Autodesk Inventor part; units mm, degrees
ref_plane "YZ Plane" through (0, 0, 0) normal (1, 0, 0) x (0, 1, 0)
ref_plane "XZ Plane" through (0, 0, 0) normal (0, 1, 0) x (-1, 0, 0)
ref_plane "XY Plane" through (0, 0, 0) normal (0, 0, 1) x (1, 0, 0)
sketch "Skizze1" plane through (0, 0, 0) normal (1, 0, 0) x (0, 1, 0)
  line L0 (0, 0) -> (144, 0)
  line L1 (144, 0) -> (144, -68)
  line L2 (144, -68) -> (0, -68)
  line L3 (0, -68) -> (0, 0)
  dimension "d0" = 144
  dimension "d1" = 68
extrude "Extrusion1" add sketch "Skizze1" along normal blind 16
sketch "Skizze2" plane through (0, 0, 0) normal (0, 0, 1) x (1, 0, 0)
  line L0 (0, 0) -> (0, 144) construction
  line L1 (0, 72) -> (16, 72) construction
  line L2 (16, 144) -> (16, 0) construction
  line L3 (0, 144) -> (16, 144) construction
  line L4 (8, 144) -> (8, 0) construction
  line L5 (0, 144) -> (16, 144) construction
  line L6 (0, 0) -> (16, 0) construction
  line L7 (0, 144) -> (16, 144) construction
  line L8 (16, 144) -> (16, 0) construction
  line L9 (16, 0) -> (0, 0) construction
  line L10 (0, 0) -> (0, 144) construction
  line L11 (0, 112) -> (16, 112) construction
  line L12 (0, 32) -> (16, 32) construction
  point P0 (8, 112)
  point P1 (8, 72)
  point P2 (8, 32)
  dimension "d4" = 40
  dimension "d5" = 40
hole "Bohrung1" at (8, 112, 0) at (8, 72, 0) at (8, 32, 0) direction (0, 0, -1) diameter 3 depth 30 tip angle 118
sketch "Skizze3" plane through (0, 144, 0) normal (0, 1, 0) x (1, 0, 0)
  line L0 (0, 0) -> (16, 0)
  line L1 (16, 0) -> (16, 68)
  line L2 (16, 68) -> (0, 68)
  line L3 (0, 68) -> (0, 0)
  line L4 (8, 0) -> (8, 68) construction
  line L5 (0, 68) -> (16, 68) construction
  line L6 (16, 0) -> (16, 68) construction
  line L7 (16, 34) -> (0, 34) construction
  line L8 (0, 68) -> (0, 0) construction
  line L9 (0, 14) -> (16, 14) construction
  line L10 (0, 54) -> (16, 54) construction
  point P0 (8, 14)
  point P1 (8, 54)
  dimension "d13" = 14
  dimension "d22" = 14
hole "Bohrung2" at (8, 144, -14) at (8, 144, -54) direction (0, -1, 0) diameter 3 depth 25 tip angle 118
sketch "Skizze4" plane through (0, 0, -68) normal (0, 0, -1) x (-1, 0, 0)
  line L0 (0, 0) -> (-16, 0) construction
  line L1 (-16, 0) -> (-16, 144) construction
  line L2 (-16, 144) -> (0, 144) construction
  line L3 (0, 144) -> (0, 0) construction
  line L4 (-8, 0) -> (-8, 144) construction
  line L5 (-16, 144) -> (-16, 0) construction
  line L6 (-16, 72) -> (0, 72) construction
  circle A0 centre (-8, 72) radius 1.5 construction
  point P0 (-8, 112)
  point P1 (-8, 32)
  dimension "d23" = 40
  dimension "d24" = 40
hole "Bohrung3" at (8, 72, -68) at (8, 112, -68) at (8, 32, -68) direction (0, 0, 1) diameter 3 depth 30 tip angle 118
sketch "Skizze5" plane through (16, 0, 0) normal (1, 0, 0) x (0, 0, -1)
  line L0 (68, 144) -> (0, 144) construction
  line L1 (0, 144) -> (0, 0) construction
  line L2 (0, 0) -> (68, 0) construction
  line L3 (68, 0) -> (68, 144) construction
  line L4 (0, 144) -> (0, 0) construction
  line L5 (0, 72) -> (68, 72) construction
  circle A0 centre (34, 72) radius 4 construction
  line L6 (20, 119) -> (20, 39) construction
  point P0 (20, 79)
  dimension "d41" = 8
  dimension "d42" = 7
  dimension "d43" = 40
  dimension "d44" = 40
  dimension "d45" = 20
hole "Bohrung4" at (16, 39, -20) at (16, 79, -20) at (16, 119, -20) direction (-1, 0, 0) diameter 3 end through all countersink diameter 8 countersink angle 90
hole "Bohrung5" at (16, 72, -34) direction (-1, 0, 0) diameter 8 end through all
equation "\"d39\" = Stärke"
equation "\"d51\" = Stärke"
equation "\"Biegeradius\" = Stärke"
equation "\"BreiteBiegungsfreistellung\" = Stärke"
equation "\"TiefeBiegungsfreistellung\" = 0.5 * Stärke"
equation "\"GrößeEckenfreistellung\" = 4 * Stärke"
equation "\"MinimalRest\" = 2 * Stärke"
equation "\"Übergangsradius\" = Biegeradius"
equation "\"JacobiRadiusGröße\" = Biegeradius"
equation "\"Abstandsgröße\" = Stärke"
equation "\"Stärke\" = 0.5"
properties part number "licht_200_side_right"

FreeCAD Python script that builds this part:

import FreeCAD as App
import Part
import Sketcher

V = App.Vector

doc = App.newDocument("Part")
body = doc.addObject("PartDesign::Body", "Body")

# Sketch on YZ plane
sketch1 = body.newObject("Sketcher::SketchObject", "Sketch")
sketch1.AttachmentSupport = (doc.getObject("YZ_Plane"), [""])
sketch1.MapMode = "FlatFace"
sketch1.addGeometry(Part.LineSegment(V(144, 0, 0), V(0, 0, 0)), False)
sketch1.addGeometry(Part.LineSegment(V(0, 0, 0), V(0, -68, 0)), False)
sketch1.addGeometry(Part.LineSegment(V(0, -68, 0), V(144, -68, 0)), False)
sketch1.addGeometry(Part.LineSegment(V(144, -68, 0), V(144, 0, 0)), False)
sketch1.addConstraint(Sketcher.Constraint("Coincident", 0, 2, 1, 1))
sketch1.addConstraint(Sketcher.Constraint("Coincident", 1, 2, 2, 1))
sketch1.addConstraint(Sketcher.Constraint("Coincident", 2, 2, 3, 1))
sketch1.addConstraint(Sketcher.Constraint("Coincident", 3, 2, 0, 1))
sketch1.addConstraint(Sketcher.Constraint("Horizontal", 0))
sketch1.addConstraint(Sketcher.Constraint("Vertical", 1))
sketch1.addConstraint(Sketcher.Constraint("Horizontal", 2))
sketch1.addConstraint(Sketcher.Constraint("Vertical", 3))
sketch1.addConstraint(Sketcher.Constraint("Coincident", 0, 2, -1, 1))
sketch1.addConstraint(Sketcher.Constraint("DistanceX", 0, 2, 0, 1, 144.0))
sketch1.addConstraint(Sketcher.Constraint("DistanceY", 1, 2, 1, 1, 68.0))
pad1 = body.newObject("PartDesign::Pad", "Pad")
pad1.Profile = sketch1
pad1.Length = 16

# Sketch on XY plane
sketch2 = body.newObject("Sketcher::SketchObject", "Sketch001")
sketch2.AttachmentSupport = (doc.getObject("XY_Plane"), [""])
sketch2.MapMode = "FlatFace"
sketch2.addGeometry(Part.Circle(V(8, 112, 0), V(0, 0, 1), 1.5), False)
sketch2.addGeometry(Part.Circle(V(8, 72, 0), V(0, 0, 1), 1.5), False)
sketch2.addGeometry(Part.Circle(V(8, 32, 0), V(0, 0, 1), 1.5), False)
sketch2.addConstraint(Sketcher.Constraint("Equal", 0, 1))
sketch2.addConstraint(Sketcher.Constraint("Equal", 1, 2))
sketch2.addConstraint(Sketcher.Constraint("Vertical", 0, 3, 1, 3))
sketch2.addConstraint(Sketcher.Constraint("Vertical", 1, 3, 2, 3))
sketch2.addConstraint(Sketcher.Constraint("Diameter", 0, 3.0))
sketch2.addConstraint(Sketcher.Constraint("DistanceX", -1, 1, 0, 3, 8.0))
sketch2.addConstraint(Sketcher.Constraint("DistanceY", -1, 1, 0, 3, 112.0))
sketch2.addConstraint(Sketcher.Constraint("DistanceY", -1, 1, 1, 3, 72.0))
sketch2.addConstraint(Sketcher.Constraint("DistanceY", -1, 1, 2, 3, 32.0))
doc.recompute()
hole = body.newObject("PartDesign::Hole", "Hole")
hole.Profile = sketch2
hole.ThreadType = "None"
hole.Diameter = 3
hole.DepthType = "Dimension"
hole.Depth = 30
hole.DrillPoint = "Angled"
hole.DrillPointAngle = 118

# Sketch on XZ plane
sketch3 = body.newObject("Sketcher::SketchObject", "Sketch002")
sketch3.AttachmentSupport = (doc.getObject("XZ_Plane"), [""])
sketch3.MapMode = "FlatFace"
sketch3.AttachmentOffset = App.Placement(V(0, 0, -144), App.Rotation())
sketch3.addGeometry(Part.Circle(V(8, -14, 0), V(0, 0, 1), 1.5), False)
sketch3.addGeometry(Part.Circle(V(8, -54, 0), V(0, 0, 1), 1.5), False)
sketch3.addConstraint(Sketcher.Constraint("Equal", 0, 1))
sketch3.addConstraint(Sketcher.Constraint("Vertical", 0, 3, 1, 3))
sketch3.addConstraint(Sketcher.Constraint("Diameter", 0, 3.0))
sketch3.addConstraint(Sketcher.Constraint("DistanceX", -1, 1, 0, 3, 8.0))
sketch3.addConstraint(Sketcher.Constraint("DistanceY", 0, 3, -1, 1, 14.0))
sketch3.addConstraint(Sketcher.Constraint("DistanceY", 1, 3, -1, 1, 54.0))
doc.recompute()
hole2 = body.newObject("PartDesign::Hole", "Hole001")
hole2.Profile = sketch3
hole2.ThreadType = "None"
hole2.Diameter = 3
hole2.DepthType = "Dimension"
hole2.Depth = 25
hole2.DrillPoint = "Angled"
hole2.DrillPointAngle = 118
hole2.Reversed = True

# Sketch on XY plane
sketch4 = body.newObject("Sketcher::SketchObject", "Sketch003")
sketch4.AttachmentSupport = (doc.getObject("XY_Plane"), [""])
sketch4.MapMode = "FlatFace"
sketch4.AttachmentOffset = App.Placement(V(0, 0, -68), App.Rotation())
sketch4.addGeometry(Part.Circle(V(8, 72, 0), V(0, 0, 1), 1.5), False)
sketch4.addGeometry(Part.Circle(V(8, 112, 0), V(0, 0, 1), 1.5), False)
sketch4.addGeometry(Part.Circle(V(8, 32, 0), V(0, 0, 1), 1.5), False)
sketch4.addConstraint(Sketcher.Constraint("Equal", 0, 1))
sketch4.addConstraint(Sketcher.Constraint("Equal", 1, 2))
sketch4.addConstraint(Sketcher.Constraint("Vertical", 0, 3, 1, 3))
sketch4.addConstraint(Sketcher.Constraint("Vertical", 1, 3, 2, 3))
sketch4.addConstraint(Sketcher.Constraint("Diameter", 0, 3.0))
sketch4.addConstraint(Sketcher.Constraint("DistanceX", -1, 1, 0, 3, 8.0))
sketch4.addConstraint(Sketcher.Constraint("DistanceY", -1, 1, 0, 3, 72.0))
sketch4.addConstraint(Sketcher.Constraint("DistanceY", -1, 1, 1, 3, 112.0))
sketch4.addConstraint(Sketcher.Constraint("DistanceY", -1, 1, 2, 3, 32.0))
doc.recompute()
hole3 = body.newObject("PartDesign::Hole", "Hole002")
hole3.Profile = sketch4
hole3.ThreadType = "None"
hole3.Diameter = 3
hole3.DepthType = "Dimension"
hole3.Depth = 30
hole3.DrillPoint = "Angled"
hole3.DrillPointAngle = 118
hole3.Reversed = True

# Sketch on YZ plane
sketch5 = body.newObject("Sketcher::SketchObject", "Sketch004")
sketch5.AttachmentSupport = (doc.getObject("YZ_Plane"), [""])
sketch5.MapMode = "FlatFace"
sketch5.AttachmentOffset = App.Placement(V(0, 0, 16), App.Rotation())
sketch5.addGeometry(Part.Circle(V(39, -20, 0), V(0, 0, 1), 1.5), False)
sketch5.addGeometry(Part.Circle(V(79, -20, 0), V(0, 0, 1), 1.5), False)
sketch5.addGeometry(Part.Circle(V(119, -20, 0), V(0, 0, 1), 1.5), False)
sketch5.addConstraint(Sketcher.Constraint("Equal", 0, 1))
sketch5.addConstraint(Sketcher.Constraint("Equal", 1, 2))
sketch5.addConstraint(Sketcher.Constraint("Horizontal", 0, 3, 1, 3))
sketch5.addConstraint(Sketcher.Constraint("Horizontal", 1, 3, 2, 3))
sketch5.addConstraint(Sketcher.Constraint("Diameter", 0, 3.0))
sketch5.addConstraint(Sketcher.Constraint("DistanceX", -1, 1, 0, 3, 39.0))
sketch5.addConstraint(Sketcher.Constraint("DistanceY", 0, 3, -1, 1, 20.0))
sketch5.addConstraint(Sketcher.Constraint("DistanceX", -1, 1, 1, 3, 79.0))
sketch5.addConstraint(Sketcher.Constraint("DistanceX", -1, 1, 2, 3, 119.0))
doc.recompute()
hole4 = body.newObject("PartDesign::Hole", "Hole003")
hole4.Profile = sketch5
hole4.ThreadType = "None"
hole4.Diameter = 3
hole4.DepthType = "ThroughAll"
hole4.HoleCutType = "Countersink"
hole4.HoleCutDiameter = 8
hole4.HoleCutCountersinkAngle = 90

# Sketch on YZ plane
sketch6 = body.newObject("Sketcher::SketchObject", "Sketch005")
sketch6.AttachmentSupport = (doc.getObject("YZ_Plane"), [""])
sketch6.MapMode = "FlatFace"
sketch6.AttachmentOffset = App.Placement(V(0, 0, 16), App.Rotation())
sketch6.addGeometry(Part.Circle(V(72, -34, 0), V(0, 0, 1), 4), False)
sketch6.addConstraint(Sketcher.Constraint("Diameter", 0, 8.0))
sketch6.addConstraint(Sketcher.Constraint("DistanceX", -1, 1, 0, 3, 72.0))
sketch6.addConstraint(Sketcher.Constraint("DistanceY", 0, 3, -1, 1, 34.0))
doc.recompute()
hole5 = body.newObject("PartDesign::Hole", "Hole004")
hole5.Profile = sketch6
hole5.ThreadType = "None"
hole5.Diameter = 8
hole5.DepthType = "ThroughAll"

doc.recompute()
